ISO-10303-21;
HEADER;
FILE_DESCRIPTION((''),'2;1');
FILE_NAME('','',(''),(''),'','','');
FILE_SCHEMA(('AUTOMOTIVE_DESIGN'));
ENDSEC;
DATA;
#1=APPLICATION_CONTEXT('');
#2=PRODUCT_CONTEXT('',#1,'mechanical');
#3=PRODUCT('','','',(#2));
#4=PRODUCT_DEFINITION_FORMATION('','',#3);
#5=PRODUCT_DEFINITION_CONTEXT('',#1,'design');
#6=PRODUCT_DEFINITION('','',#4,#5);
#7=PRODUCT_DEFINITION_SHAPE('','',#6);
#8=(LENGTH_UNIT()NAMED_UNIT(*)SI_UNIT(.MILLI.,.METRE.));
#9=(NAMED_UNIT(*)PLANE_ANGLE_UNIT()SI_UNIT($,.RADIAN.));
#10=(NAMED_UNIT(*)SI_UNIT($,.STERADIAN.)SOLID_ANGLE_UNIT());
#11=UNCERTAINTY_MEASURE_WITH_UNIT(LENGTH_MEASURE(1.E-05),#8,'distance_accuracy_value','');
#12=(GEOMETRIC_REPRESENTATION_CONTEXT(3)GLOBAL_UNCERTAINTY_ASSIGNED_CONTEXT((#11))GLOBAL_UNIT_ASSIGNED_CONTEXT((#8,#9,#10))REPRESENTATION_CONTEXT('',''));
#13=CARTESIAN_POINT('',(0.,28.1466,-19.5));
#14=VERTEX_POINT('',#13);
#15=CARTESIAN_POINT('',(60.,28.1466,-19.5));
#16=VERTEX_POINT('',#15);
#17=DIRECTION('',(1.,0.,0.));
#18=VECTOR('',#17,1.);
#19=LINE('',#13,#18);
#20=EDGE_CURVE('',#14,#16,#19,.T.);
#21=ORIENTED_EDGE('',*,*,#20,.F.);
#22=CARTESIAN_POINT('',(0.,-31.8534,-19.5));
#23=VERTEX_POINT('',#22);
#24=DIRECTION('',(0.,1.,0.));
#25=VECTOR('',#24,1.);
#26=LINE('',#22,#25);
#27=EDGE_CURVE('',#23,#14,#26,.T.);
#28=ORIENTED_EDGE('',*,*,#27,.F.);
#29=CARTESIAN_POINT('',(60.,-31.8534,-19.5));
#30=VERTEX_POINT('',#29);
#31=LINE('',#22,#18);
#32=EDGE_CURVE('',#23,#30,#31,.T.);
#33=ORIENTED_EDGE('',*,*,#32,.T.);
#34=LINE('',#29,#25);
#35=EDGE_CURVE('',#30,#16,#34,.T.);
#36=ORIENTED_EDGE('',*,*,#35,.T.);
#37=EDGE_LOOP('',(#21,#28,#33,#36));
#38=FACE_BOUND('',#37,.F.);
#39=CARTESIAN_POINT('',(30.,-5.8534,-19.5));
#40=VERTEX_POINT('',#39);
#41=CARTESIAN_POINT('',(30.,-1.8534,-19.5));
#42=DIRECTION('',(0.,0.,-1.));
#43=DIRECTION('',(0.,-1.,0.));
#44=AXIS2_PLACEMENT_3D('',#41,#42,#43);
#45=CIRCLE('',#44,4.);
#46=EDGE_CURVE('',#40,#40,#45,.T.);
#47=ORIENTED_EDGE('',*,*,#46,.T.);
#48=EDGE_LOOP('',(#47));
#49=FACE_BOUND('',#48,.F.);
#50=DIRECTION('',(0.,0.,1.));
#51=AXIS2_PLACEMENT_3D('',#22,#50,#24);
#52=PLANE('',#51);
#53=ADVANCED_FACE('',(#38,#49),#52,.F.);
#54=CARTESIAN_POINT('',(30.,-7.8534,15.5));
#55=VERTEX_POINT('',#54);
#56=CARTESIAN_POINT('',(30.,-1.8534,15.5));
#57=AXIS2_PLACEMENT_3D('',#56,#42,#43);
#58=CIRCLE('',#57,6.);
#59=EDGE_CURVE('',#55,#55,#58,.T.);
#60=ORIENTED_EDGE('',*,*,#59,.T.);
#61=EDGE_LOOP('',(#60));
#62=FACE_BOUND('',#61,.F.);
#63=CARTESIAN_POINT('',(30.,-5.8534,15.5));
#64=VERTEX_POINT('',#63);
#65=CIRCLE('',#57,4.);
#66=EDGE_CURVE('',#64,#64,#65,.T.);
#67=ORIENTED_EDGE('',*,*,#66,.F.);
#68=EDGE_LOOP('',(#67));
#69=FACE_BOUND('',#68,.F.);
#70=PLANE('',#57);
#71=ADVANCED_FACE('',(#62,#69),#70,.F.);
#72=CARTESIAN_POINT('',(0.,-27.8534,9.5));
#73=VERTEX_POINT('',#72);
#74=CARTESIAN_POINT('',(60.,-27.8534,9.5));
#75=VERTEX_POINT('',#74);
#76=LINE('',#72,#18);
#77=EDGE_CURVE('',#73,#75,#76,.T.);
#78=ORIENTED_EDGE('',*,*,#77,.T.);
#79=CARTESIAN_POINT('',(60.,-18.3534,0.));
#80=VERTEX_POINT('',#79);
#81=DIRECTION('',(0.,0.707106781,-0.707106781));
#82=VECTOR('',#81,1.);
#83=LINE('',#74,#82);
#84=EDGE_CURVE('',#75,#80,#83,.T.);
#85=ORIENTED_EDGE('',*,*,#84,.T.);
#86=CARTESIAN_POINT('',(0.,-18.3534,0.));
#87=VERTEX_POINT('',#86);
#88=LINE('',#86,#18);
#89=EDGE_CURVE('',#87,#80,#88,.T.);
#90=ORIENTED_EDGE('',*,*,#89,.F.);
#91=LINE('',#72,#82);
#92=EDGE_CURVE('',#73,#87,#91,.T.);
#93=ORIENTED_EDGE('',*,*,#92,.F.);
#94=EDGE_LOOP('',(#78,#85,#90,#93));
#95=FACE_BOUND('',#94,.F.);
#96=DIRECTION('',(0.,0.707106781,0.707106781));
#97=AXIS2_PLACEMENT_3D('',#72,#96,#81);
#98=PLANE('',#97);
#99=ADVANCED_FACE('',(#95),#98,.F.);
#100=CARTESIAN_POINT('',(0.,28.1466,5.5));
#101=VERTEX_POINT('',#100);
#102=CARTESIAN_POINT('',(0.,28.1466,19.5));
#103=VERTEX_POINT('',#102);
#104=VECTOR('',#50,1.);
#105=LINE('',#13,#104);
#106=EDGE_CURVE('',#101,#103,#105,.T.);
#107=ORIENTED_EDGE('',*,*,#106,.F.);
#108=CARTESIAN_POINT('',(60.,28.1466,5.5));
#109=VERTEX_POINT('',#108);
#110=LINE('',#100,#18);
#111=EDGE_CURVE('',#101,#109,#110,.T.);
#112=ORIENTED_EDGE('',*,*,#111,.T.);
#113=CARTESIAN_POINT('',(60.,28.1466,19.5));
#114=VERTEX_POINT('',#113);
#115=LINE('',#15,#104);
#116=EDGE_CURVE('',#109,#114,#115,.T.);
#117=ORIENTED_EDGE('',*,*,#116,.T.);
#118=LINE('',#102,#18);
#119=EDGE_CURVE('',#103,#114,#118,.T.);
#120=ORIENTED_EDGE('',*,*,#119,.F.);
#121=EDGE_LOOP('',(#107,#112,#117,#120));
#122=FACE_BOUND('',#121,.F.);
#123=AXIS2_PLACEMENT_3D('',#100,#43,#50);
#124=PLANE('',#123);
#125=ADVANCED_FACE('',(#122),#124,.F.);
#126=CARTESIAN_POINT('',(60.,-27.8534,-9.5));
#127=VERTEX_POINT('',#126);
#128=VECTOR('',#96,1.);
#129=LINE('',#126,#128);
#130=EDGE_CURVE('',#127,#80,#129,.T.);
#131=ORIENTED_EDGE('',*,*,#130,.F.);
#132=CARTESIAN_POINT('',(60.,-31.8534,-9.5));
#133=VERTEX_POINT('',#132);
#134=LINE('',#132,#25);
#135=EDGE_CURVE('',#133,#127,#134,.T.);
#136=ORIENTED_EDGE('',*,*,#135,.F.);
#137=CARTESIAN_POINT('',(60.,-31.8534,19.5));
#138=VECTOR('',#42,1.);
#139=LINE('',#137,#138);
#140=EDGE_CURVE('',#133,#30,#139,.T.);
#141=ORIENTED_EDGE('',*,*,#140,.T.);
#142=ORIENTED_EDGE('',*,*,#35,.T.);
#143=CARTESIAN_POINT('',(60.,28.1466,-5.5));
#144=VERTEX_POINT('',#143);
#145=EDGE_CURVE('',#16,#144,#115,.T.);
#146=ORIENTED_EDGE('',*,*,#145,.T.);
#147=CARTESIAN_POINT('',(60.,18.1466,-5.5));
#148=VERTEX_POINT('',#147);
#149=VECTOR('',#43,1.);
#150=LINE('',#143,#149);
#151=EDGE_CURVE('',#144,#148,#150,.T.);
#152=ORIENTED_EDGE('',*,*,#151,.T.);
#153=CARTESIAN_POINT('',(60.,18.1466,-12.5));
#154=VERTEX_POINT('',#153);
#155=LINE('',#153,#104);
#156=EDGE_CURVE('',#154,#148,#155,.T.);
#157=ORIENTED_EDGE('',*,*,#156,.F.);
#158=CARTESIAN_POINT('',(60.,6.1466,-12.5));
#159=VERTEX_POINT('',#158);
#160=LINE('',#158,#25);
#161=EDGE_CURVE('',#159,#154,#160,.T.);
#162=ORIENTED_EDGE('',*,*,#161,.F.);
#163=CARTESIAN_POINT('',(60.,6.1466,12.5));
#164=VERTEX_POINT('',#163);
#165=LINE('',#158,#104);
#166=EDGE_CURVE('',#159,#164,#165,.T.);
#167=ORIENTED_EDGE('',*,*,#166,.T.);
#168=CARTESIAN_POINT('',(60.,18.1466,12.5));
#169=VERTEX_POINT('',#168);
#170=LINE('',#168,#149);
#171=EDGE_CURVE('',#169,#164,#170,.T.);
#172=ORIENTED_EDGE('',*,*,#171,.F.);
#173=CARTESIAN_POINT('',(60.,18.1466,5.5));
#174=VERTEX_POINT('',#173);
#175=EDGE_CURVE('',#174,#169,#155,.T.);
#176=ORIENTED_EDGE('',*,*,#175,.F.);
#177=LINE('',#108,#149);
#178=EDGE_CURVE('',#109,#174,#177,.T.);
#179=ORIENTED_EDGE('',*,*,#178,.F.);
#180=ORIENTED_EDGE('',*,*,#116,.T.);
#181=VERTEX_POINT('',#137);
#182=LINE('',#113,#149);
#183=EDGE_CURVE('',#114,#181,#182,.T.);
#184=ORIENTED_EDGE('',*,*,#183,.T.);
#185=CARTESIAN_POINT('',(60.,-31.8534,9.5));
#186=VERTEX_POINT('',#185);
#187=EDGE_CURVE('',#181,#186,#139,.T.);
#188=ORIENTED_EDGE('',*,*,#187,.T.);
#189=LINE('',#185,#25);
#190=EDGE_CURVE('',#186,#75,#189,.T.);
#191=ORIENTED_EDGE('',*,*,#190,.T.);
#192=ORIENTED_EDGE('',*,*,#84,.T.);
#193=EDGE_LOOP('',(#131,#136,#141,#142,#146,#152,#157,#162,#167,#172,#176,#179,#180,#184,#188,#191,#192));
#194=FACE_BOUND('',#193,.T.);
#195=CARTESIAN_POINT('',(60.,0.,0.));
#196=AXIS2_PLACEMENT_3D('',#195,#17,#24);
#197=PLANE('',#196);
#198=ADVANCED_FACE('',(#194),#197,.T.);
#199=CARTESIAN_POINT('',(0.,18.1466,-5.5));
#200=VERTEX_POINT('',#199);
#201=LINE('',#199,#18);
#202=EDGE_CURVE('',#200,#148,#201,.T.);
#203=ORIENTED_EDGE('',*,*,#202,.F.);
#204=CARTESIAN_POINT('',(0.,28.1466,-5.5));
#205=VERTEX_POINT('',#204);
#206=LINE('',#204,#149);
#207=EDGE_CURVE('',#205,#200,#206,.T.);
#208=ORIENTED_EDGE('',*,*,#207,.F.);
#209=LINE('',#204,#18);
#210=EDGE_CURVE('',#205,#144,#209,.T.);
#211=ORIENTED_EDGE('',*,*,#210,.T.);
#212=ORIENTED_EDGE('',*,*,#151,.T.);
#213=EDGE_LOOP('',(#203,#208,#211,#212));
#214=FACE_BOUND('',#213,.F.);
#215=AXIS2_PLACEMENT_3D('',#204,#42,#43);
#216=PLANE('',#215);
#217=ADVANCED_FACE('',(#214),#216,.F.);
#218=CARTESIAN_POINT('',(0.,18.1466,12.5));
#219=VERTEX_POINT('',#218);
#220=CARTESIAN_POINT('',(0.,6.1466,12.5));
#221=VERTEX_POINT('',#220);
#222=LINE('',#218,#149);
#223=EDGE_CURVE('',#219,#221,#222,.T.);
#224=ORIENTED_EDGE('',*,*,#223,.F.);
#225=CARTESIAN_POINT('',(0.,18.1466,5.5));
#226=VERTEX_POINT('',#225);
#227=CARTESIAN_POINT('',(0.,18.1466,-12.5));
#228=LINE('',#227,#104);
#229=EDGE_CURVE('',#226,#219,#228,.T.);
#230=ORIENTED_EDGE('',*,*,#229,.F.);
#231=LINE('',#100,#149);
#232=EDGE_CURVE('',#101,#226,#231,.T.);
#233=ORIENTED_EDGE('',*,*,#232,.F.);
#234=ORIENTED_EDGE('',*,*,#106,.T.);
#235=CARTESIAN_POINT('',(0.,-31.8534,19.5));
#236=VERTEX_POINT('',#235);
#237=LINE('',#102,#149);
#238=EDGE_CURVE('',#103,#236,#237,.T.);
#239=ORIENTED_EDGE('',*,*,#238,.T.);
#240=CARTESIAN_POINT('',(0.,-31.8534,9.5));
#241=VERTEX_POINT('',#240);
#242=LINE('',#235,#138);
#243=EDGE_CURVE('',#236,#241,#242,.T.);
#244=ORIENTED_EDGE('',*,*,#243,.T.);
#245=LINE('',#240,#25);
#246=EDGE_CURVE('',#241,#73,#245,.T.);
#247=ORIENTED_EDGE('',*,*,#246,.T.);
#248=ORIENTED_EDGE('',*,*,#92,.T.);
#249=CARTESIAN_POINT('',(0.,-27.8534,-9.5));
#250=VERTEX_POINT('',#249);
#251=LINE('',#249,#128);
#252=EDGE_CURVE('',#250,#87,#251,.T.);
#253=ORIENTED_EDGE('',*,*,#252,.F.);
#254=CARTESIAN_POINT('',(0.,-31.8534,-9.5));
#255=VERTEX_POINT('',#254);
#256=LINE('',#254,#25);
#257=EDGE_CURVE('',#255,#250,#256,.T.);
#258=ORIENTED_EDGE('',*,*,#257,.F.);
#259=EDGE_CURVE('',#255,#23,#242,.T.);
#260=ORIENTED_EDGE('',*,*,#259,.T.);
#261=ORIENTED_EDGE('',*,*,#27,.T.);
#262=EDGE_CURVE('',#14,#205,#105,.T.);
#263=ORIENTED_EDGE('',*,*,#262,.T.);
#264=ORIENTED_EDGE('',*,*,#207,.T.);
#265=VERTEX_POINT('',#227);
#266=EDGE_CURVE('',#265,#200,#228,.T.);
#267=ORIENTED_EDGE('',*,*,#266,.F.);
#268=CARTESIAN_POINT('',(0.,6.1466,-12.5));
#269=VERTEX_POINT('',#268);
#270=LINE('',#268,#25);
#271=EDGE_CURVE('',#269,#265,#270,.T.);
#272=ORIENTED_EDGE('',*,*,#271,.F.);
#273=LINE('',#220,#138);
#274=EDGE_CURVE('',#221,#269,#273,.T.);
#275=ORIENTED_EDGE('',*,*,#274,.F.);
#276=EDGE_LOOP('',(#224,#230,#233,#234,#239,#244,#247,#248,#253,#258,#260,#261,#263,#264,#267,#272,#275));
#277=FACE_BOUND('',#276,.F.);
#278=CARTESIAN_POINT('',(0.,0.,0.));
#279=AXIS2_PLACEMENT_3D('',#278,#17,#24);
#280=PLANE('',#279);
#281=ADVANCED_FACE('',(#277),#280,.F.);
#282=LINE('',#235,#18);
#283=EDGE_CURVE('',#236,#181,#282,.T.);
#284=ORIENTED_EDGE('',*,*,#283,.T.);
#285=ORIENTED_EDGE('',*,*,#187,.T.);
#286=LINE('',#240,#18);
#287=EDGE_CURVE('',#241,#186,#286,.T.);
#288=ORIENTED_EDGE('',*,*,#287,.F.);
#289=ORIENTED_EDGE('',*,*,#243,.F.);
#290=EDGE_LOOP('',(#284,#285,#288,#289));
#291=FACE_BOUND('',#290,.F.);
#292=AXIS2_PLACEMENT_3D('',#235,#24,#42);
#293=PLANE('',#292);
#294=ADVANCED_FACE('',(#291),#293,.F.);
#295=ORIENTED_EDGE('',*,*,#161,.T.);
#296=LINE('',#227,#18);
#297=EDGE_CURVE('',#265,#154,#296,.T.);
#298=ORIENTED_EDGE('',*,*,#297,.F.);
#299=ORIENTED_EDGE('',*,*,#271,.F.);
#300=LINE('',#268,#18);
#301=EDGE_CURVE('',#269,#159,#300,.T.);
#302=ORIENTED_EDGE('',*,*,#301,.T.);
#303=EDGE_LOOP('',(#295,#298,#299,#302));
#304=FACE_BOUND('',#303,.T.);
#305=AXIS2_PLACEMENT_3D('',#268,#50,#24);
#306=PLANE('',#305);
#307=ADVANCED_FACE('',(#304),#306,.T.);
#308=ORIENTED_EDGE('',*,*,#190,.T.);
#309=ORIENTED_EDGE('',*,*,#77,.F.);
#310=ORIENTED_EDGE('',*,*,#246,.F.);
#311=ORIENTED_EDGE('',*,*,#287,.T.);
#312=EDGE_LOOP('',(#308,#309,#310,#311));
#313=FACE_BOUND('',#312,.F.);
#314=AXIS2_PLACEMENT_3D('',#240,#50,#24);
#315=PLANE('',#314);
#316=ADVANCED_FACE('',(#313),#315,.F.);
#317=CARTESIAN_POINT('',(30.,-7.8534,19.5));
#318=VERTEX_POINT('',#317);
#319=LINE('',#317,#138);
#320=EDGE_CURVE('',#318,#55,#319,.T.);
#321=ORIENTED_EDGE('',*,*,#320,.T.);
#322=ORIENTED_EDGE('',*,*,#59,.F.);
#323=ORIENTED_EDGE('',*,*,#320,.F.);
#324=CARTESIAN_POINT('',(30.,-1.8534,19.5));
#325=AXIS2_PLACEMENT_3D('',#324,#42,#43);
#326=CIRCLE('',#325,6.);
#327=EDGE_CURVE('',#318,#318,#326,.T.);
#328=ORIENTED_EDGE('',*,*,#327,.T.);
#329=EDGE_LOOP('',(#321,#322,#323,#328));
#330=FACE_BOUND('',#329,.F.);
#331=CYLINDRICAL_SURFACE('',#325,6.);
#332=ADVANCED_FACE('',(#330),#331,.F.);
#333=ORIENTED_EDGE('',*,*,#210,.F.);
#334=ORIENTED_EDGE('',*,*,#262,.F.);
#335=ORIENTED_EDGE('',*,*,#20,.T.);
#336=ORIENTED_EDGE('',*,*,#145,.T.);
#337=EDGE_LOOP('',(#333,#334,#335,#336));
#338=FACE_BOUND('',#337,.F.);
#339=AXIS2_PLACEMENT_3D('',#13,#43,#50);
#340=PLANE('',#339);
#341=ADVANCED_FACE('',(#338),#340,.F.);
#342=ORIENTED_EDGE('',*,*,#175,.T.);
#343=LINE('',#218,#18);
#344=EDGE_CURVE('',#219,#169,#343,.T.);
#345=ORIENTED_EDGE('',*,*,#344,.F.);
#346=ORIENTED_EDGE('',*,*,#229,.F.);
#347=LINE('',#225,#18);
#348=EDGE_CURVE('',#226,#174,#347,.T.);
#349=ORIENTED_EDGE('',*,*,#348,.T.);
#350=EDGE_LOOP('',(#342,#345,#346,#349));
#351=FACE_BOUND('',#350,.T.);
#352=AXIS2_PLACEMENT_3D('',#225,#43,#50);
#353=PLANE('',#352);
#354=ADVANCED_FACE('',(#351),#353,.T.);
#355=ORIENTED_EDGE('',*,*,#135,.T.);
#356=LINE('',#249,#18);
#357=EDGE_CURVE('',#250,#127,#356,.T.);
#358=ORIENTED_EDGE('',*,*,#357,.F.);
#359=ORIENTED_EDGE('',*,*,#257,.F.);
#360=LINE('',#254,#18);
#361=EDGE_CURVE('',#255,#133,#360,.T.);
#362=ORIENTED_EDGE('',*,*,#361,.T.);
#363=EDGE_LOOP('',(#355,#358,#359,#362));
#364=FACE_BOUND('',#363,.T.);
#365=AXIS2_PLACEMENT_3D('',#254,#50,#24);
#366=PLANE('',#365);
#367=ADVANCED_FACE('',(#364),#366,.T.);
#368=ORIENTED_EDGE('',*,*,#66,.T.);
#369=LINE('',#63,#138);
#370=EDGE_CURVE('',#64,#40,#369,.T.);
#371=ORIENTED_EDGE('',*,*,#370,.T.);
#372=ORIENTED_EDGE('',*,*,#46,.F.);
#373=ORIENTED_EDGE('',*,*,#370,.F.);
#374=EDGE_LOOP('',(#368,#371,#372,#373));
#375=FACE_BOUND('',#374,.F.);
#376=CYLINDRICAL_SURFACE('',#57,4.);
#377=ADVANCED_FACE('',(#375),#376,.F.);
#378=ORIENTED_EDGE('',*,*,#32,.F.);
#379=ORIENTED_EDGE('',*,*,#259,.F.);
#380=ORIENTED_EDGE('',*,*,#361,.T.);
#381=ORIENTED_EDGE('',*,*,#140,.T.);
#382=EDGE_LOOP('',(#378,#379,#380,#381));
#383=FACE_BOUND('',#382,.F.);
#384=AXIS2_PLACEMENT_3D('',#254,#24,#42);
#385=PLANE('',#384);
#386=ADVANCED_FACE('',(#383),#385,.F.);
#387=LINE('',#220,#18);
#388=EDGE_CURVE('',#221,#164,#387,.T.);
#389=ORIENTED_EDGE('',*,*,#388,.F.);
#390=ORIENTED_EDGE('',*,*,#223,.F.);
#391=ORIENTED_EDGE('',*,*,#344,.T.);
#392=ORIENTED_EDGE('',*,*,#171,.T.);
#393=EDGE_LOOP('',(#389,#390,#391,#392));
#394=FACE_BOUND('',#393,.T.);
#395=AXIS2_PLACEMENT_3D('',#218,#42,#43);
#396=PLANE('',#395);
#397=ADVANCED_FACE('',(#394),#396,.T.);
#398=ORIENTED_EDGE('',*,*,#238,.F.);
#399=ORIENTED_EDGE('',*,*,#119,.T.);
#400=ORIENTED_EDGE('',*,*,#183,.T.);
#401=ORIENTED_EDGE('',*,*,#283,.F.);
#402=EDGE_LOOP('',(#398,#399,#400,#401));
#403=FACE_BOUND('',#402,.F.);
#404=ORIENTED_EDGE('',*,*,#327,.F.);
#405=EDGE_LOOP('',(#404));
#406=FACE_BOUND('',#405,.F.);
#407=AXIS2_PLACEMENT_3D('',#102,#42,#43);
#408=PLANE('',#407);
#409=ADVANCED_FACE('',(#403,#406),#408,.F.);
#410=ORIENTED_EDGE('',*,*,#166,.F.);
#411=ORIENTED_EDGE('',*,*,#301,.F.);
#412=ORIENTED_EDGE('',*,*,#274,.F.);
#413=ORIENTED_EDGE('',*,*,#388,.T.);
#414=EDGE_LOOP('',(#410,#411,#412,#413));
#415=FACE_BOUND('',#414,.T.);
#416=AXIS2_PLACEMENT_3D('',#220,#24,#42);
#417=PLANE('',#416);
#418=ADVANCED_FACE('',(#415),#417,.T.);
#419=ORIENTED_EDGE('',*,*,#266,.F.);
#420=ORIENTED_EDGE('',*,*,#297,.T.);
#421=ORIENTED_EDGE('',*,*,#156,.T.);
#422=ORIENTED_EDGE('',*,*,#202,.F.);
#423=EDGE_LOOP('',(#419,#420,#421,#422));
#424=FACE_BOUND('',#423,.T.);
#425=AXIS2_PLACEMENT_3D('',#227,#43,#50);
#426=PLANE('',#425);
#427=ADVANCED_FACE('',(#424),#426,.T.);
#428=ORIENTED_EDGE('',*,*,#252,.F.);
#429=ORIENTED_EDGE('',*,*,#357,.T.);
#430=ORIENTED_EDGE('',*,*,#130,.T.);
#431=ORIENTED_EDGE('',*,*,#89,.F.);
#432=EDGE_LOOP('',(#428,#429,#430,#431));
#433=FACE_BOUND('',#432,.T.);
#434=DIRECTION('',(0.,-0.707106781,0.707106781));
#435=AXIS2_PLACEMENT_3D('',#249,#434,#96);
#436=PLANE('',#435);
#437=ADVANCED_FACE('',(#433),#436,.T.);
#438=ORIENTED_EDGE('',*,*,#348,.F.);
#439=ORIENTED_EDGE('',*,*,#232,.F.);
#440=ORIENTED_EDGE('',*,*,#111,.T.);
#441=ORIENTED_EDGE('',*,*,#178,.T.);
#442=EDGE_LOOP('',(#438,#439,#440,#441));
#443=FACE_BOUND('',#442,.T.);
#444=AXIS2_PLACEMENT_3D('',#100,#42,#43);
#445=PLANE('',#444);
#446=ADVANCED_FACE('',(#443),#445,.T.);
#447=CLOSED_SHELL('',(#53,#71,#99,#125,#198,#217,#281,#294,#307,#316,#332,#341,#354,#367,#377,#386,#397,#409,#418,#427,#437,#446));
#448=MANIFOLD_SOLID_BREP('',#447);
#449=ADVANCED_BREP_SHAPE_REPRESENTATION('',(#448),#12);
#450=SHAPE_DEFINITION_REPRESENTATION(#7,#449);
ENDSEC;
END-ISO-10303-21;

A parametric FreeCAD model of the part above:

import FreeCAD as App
import Part
import Sketcher

V = App.Vector
Q = App.Units.Quantity

doc = App.newDocument("Part")
body = doc.addObject("PartDesign::Body", "Body")

# Sketch on YZ plane
sketch1 = doc.addObject("Sketcher::SketchObject", "Sketch")
body.addObject(sketch1)
sketch1.AttachmentSupport = (doc.YZ_Plane, [""])
sketch1.MapMode = "FlatFace"
sketch1.addGeometry(Part.LineSegment(V(28.1, 5.5, 0), V(28.1, 19.5, 0)), False)
sketch1.addGeometry(Part.LineSegment(V(28.1, 19.5, 0), V(-31.9, 19.5, 0)), False)
sketch1.addGeometry(Part.LineSegment(V(-31.9, 19.5, 0), V(-31.9, 9.5, 0)), False)
sketch1.addGeometry(Part.LineSegment(V(-31.9, 9.5, 0), V(-27.9, 9.5, 0)), False)
sketch1.addGeometry(Part.LineSegment(V(-27.9, 9.5, 0), V(-18.4, 0, 0)), False)
sketch1.addGeometry(Part.LineSegment(V(-18.4, 0, 0), V(-27.9, -9.5, 0)), False)
sketch1.addGeometry(Part.LineSegment(V(-27.9, -9.5, 0), V(-31.9, -9.5, 0)), False)
sketch1.addGeometry(Part.LineSegment(V(-31.9, -9.5, 0), V(-31.9, -19.5, 0)), False)
sketch1.addGeometry(Part.LineSegment(V(-31.9, -19.5, 0), V(28.1, -19.5, 0)), False)
sketch1.addGeometry(Part.LineSegment(V(28.1, -19.5, 0), V(28.1, -5.5, 0)), False)
sketch1.addGeometry(Part.LineSegment(V(28.1, -5.5, 0), V(18.1, -5.5, 0)), False)
sketch1.addGeometry(Part.LineSegment(V(18.1, -5.5, 0), V(18.1, -12.5, 0)), False)
sketch1.addGeometry(Part.LineSegment(V(18.1, -12.5, 0), V(6.1, -12.5, 0)), False)
sketch1.addGeometry(Part.LineSegment(V(6.1, -12.5, 0), V(6.1, 12.5, 0)), False)
sketch1.addGeometry(Part.LineSegment(V(6.1, 12.5, 0), V(18.1, 12.5, 0)), False)
sketch1.addGeometry(Part.LineSegment(V(18.1, 12.5, 0), V(18.1, 5.5, 0)), False)
sketch1.addGeometry(Part.LineSegment(V(18.1, 5.5, 0), V(28.1, 5.5, 0)), False)
sketch1.addConstraint(Sketcher.Constraint("Coincident", 0, 2, 1, 1))
sketch1.addConstraint(Sketcher.Constraint("Coincident", 1, 2, 2, 1))
sketch1.addConstraint(Sketcher.Constraint("Coincident", 2, 2, 3, 1))
sketch1.addConstraint(Sketcher.Constraint("Coincident", 3, 2, 4, 1))
sketch1.addConstraint(Sketcher.Constraint("Coincident", 4, 2, 5, 1))
sketch1.addConstraint(Sketcher.Constraint("Coincident", 5, 2, 6, 1))
sketch1.addConstraint(Sketcher.Constraint("Coincident", 6, 2, 7, 1))
sketch1.addConstraint(Sketcher.Constraint("Coincident", 7, 2, 8, 1))
sketch1.addConstraint(Sketcher.Constraint("Coincident", 8, 2, 9, 1))
sketch1.addConstraint(Sketcher.Constraint("Coincident", 9, 2, 10, 1))
sketch1.addConstraint(Sketcher.Constraint("Coincident", 10, 2, 11, 1))
sketch1.addConstraint(Sketcher.Constraint("Coincident", 11, 2, 12, 1))
sketch1.addConstraint(Sketcher.Constraint("Coincident", 12, 2, 13, 1))
sketch1.addConstraint(Sketcher.Constraint("Coincident", 13, 2, 14, 1))
sketch1.addConstraint(Sketcher.Constraint("Coincident", 14, 2, 15, 1))
sketch1.addConstraint(Sketcher.Constraint("Coincident", 15, 2, 16, 1))
sketch1.addConstraint(Sketcher.Constraint("Coincident", 16, 2, 0, 1))
sketch1.addConstraint(Sketcher.Constraint("Vertical", 0))
sketch1.addConstraint(Sketcher.Constraint("Horizontal", 1))
sketch1.addConstraint(Sketcher.Constraint("Vertical", 2))
sketch1.addConstraint(Sketcher.Constraint("Horizontal", 3))
sketch1.addConstraint(Sketcher.Constraint("Horizontal", 6))
sketch1.addConstraint(Sketcher.Constraint("Vertical", 7))
sketch1.addConstraint(Sketcher.Constraint("Horizontal", 8))
sketch1.addConstraint(Sketcher.Constraint("Vertical", 9))
sketch1.addConstraint(Sketcher.Constraint("Horizontal", 10))
sketch1.addConstraint(Sketcher.Constraint("Vertical", 11))
sketch1.addConstraint(Sketcher.Constraint("Horizontal", 12))
sketch1.addConstraint(Sketcher.Constraint("Vertical", 13))
sketch1.addConstraint(Sketcher.Constraint("Horizontal", 14))
sketch1.addConstraint(Sketcher.Constraint("Vertical", 15))
sketch1.addConstraint(Sketcher.Constraint("Horizontal", 16))
sketch1.addConstraint(Sketcher.Constraint("Symmetric", 3, 2, 5, 2, -1))
sketch1.addConstraint(Sketcher.Constraint("Symmetric", 1, 2, 7, 2, -1))
sketch1.addConstraint(Sketcher.Constraint("Symmetric", 11, 2, 14, 2, -1))
sketch1.addConstraint(Sketcher.Constraint("Symmetric", 9, 2, 16, 2, -1))
sketch1.addConstraint(Sketcher.Constraint("PointOnObject", 4, 2, -1))
sketch1.addConstraint(Sketcher.Constraint("Perpendicular", 4, 5))
sketch1.addConstraint(Sketcher.Constraint("Equal", 16, 2))
sketch1.addConstraint(Sketcher.Constraint("DistanceX", 1, 2, 1, 1, Q("60 mm")))
sketch1.addConstraint(Sketcher.Constraint("DistanceX", 3, 1, 3, 2, Q("4 mm")))
sketch1.addConstraint(Sketcher.Constraint("DistanceX", 10, 2, 10, 1, Q("10 mm")))
sketch1.addConstraint(Sketcher.Constraint("DistanceX", 12, 2, 12, 1, Q("12 mm")))
sketch1.addConstraint(Sketcher.Constraint("DistanceY", 13, 1, 13, 2, Q("25 mm")))
sketch1.addConstraint(Sketcher.Constraint("DistanceY", 8, 2, 0, 2, Q("39 mm")))
sketch1.addConstraint(Sketcher.Constraint("DistanceY", 9, 2, 0, 2, Q("25 mm")))
sketch1.addConstraint(Sketcher.Constraint("DistanceX", -1, 1, 0, 2, Q("28.1466 mm")))
pad1 = doc.addObject("PartDesign::Pad", "Pad")
body.addObject(pad1)
pad1.Profile = sketch1
pad1.Length = 60

# Sketch on XY plane
sketch2 = doc.addObject("Sketcher::SketchObject", "Sketch001")
body.addObject(sketch2)
sketch2.AttachmentSupport = (doc.XY_Plane, [""])
sketch2.MapMode = "FlatFace"
sketch2.AttachmentOffset = App.Placement(V(0, 0, 19.5), App.Rotation())
sketch2.addGeometry(Part.Circle(V(30, -1.9, 0), V(0, 0, 1), 4), False)
sketch2.addConstraint(Sketcher.Constraint("Diameter", 0, Q("8 mm")))
sketch2.addConstraint(Sketcher.Constraint("DistanceX", -1, 1, 0, 3, Q("30 mm")))
sketch2.addConstraint(Sketcher.Constraint("DistanceY", 0, 3, -1, 1, Q("1.8534 mm")))
doc.recompute()
hole = doc.addObject("PartDesign::Hole", "Hole")
body.addObject(hole)
hole.Profile = sketch2
hole.ThreadType = "None"
hole.Diameter = 8
hole.DepthType = "ThroughAll"
hole.HoleCutType = "Counterbore"
hole.HoleCutDiameter = 12
hole.HoleCutDepth = 4

doc.recompute()
